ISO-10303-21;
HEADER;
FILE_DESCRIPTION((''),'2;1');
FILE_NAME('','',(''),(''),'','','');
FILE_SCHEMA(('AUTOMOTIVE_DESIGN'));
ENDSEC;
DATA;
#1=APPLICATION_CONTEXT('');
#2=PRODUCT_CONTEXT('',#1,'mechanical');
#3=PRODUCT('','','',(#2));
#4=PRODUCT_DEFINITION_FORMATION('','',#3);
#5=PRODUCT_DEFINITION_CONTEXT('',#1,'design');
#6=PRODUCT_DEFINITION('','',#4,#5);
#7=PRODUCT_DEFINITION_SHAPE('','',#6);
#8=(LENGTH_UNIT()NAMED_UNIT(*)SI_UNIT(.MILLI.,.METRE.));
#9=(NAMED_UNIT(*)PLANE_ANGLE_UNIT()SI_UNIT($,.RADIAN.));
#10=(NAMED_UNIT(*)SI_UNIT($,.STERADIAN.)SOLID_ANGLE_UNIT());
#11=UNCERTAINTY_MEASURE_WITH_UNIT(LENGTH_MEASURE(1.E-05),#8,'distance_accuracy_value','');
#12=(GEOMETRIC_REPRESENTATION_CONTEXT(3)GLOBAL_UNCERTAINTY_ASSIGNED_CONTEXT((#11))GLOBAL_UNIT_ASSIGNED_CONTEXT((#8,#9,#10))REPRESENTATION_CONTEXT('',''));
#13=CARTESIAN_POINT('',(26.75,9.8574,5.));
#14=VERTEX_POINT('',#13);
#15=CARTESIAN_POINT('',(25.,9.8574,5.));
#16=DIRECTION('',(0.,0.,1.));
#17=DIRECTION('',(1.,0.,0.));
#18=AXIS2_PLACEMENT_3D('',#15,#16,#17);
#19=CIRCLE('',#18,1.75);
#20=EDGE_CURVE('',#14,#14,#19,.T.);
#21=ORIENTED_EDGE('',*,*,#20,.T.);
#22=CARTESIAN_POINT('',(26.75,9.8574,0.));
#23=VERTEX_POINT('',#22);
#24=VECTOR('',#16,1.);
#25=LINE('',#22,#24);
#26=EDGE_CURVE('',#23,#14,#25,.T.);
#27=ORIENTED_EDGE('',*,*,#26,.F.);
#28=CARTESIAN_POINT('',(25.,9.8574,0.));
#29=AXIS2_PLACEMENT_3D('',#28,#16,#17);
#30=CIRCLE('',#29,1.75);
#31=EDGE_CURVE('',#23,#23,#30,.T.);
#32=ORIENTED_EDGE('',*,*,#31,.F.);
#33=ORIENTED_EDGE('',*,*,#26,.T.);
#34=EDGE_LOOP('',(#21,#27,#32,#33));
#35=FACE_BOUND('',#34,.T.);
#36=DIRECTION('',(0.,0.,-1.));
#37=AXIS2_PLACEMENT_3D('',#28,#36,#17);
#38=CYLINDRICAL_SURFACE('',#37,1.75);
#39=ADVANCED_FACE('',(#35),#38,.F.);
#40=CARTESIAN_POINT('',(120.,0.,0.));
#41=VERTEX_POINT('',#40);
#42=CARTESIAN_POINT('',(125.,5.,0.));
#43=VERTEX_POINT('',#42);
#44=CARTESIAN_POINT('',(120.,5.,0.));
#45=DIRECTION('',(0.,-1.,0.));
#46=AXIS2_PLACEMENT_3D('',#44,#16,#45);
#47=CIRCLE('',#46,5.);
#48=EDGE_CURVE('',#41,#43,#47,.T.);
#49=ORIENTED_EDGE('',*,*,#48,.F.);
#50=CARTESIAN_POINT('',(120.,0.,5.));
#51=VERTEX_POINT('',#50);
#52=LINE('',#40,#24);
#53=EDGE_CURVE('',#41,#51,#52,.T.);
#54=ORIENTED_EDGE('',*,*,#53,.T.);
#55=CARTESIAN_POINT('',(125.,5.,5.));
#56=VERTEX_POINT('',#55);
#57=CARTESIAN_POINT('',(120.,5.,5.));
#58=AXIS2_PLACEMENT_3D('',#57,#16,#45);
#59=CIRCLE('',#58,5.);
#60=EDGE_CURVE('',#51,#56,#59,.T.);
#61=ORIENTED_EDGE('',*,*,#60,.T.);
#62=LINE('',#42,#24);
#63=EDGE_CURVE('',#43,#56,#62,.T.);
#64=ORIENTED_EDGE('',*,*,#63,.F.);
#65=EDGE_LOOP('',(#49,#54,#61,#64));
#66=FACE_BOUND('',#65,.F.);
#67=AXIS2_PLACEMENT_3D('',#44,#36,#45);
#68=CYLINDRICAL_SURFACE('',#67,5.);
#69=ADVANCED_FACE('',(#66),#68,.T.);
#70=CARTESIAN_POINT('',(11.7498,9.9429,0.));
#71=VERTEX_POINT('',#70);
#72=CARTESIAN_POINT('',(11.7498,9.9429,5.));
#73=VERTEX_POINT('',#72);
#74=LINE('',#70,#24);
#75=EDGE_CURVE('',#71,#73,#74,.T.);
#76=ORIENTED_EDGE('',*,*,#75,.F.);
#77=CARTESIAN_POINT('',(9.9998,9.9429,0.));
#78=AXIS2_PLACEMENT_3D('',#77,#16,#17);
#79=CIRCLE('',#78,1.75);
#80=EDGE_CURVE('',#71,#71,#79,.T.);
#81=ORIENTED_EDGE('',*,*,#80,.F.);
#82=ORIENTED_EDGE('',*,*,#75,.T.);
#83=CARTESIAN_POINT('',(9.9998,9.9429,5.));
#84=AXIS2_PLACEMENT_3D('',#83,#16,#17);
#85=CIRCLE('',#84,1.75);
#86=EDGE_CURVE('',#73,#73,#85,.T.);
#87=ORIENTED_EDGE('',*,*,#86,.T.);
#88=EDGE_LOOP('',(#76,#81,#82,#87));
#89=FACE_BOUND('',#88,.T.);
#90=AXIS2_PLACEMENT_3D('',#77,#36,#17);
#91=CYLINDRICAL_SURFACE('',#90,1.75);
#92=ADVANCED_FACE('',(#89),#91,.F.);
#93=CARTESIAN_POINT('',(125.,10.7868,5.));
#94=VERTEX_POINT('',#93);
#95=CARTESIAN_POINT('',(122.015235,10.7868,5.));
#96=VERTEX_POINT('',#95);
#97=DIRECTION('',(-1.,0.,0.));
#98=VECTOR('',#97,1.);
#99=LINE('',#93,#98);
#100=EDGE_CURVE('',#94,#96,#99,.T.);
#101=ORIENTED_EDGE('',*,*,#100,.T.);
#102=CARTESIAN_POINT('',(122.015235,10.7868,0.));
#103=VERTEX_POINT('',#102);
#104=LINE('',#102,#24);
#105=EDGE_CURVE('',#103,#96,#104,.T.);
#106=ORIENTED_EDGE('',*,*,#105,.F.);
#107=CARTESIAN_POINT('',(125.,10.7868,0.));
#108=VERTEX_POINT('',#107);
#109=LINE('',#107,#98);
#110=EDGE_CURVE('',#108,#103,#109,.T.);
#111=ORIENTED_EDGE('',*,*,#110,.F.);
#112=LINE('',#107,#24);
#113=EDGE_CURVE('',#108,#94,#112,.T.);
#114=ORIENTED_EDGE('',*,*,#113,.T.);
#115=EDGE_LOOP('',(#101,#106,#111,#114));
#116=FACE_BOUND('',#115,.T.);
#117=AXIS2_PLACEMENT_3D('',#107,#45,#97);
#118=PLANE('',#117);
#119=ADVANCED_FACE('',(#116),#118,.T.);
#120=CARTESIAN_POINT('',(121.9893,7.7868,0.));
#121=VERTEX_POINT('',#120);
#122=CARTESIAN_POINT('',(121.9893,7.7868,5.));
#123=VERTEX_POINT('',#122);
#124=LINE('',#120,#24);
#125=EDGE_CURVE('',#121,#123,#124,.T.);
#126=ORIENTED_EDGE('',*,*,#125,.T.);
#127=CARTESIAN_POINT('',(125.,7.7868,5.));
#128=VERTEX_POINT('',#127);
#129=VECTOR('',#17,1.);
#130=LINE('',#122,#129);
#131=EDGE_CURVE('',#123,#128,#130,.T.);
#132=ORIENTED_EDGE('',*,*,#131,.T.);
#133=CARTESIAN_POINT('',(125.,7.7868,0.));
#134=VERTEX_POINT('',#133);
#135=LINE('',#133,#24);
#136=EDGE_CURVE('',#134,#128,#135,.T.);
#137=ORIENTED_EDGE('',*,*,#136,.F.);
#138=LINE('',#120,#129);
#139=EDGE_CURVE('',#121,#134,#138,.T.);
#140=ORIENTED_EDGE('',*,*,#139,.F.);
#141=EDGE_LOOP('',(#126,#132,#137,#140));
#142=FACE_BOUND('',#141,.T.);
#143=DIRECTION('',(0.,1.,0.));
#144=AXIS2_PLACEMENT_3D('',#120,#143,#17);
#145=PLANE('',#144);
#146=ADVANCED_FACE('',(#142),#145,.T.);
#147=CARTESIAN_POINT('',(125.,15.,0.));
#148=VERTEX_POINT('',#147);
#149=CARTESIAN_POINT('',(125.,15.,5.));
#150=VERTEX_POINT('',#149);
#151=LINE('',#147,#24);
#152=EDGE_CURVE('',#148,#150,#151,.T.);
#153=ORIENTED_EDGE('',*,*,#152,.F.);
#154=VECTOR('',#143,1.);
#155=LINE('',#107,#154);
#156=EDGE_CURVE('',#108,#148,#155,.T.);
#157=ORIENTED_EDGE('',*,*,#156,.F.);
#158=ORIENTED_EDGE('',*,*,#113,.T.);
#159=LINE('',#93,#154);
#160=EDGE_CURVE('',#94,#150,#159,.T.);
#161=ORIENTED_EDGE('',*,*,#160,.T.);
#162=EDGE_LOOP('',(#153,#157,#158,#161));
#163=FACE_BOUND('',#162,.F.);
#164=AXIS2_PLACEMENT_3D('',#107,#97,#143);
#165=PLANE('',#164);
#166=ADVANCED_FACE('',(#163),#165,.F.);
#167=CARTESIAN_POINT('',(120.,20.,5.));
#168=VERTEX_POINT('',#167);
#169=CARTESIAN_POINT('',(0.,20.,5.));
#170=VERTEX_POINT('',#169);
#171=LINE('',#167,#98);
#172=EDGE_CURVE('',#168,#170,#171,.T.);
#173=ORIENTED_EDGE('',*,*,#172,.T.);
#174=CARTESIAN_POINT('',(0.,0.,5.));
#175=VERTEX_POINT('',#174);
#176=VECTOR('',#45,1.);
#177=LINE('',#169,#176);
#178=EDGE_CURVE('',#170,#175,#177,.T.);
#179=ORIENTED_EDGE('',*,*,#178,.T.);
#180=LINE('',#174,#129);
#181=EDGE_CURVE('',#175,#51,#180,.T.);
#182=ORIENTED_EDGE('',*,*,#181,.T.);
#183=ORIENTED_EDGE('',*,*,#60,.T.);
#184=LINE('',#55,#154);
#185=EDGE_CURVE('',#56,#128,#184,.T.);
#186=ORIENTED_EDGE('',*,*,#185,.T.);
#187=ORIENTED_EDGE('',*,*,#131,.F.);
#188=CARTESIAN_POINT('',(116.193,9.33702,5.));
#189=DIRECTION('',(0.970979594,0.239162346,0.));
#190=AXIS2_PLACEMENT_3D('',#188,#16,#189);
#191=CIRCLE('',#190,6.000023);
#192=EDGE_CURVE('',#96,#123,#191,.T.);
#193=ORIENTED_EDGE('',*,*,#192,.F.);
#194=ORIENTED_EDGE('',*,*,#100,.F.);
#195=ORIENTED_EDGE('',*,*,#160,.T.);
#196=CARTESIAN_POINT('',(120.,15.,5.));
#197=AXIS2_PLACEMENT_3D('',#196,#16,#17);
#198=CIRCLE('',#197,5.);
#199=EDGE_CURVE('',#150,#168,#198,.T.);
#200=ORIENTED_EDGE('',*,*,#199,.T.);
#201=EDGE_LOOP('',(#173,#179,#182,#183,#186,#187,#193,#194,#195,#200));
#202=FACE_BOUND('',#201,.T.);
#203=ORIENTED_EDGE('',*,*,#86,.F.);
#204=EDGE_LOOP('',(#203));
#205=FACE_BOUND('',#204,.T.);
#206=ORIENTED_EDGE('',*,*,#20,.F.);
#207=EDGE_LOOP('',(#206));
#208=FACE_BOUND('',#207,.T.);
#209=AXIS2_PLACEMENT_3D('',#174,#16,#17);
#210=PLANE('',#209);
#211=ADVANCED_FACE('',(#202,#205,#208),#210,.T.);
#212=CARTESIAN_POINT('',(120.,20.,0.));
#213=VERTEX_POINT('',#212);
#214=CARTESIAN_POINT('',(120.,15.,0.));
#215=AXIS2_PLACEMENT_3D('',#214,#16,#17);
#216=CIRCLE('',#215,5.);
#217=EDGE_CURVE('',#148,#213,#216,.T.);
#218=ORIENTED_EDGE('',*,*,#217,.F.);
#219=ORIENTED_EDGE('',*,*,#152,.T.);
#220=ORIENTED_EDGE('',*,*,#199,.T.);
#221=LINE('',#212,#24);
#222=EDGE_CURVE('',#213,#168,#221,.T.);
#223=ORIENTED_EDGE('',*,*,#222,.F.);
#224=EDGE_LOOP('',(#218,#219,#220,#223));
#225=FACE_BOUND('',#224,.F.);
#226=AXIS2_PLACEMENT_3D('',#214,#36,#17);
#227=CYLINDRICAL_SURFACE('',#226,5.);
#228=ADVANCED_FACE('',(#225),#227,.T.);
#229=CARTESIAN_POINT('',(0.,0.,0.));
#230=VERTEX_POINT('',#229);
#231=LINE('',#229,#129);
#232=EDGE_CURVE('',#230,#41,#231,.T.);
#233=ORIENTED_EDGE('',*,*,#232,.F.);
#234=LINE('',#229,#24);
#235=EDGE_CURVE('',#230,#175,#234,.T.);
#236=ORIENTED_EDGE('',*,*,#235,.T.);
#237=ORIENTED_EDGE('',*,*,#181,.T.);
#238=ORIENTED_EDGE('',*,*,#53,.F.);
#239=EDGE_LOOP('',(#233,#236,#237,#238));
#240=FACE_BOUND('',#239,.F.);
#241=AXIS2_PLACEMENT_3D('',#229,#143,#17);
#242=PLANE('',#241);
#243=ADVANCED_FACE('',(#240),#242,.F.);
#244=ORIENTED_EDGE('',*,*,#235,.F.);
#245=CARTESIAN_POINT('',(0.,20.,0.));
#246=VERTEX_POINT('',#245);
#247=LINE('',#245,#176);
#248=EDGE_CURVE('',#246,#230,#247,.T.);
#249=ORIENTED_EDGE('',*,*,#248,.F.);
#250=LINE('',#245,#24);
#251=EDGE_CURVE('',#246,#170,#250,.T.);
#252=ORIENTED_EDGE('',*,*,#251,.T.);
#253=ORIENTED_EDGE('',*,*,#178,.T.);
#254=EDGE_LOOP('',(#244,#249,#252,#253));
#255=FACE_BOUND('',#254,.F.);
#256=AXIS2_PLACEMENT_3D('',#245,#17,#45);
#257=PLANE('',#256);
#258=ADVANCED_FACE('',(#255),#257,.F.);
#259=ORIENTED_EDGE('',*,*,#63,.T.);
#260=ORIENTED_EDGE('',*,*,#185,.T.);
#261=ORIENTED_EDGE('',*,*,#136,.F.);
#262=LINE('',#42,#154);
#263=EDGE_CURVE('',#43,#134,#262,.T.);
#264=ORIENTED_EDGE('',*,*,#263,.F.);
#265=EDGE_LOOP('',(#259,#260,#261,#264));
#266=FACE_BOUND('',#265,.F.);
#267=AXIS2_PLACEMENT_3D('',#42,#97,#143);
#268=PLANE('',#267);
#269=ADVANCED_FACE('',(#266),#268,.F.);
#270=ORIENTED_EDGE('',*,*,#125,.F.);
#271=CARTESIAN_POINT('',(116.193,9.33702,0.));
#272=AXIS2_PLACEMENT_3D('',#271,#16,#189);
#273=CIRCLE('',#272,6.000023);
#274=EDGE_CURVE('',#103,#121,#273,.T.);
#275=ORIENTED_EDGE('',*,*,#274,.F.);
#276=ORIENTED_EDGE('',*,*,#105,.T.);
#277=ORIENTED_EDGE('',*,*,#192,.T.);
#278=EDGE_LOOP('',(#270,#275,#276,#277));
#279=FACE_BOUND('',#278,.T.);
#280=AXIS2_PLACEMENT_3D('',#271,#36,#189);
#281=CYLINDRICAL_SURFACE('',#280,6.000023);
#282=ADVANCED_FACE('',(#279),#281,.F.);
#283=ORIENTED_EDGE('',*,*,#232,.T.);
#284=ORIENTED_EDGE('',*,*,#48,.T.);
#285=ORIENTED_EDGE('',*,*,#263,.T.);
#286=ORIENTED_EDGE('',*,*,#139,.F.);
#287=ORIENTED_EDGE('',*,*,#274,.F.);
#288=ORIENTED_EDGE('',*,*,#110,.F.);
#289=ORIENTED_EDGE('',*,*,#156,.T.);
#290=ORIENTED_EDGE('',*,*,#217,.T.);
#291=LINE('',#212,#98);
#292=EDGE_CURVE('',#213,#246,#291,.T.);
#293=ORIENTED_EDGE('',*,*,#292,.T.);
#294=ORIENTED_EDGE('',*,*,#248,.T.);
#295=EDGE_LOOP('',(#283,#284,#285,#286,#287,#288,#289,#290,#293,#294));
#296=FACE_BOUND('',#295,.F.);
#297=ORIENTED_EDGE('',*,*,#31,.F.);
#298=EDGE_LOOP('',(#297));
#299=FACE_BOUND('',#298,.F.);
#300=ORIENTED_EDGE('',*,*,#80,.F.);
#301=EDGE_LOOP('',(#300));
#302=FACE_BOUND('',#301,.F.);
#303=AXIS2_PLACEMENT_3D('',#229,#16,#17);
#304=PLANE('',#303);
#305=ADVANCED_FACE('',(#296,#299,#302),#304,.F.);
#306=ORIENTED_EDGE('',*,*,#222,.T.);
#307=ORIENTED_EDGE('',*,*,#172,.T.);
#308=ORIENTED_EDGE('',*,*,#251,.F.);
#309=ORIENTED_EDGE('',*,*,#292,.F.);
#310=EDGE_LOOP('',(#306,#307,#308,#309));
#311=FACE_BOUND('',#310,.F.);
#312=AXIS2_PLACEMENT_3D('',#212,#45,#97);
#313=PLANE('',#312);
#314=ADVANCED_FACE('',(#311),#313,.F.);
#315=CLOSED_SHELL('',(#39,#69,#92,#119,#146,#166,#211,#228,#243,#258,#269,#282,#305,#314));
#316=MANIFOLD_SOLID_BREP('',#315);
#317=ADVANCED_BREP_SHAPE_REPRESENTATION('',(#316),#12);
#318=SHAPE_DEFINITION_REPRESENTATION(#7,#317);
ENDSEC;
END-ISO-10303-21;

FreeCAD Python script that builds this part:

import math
import FreeCAD as App
import Part
import Sketcher

V = App.Vector
Q = App.Units.Quantity

doc = App.newDocument("Part")
body = doc.addObject("PartDesign::Body", "Body")

# Sketch on XY plane
sketch1 = doc.addObject("Sketcher::SketchObject", "Sketch")
body.addObject(sketch1)
sketch1.AttachmentSupport = (doc.XY_Plane, [""])
sketch1.MapMode = "FlatFace"
sketch1.addGeometry([
    Part.LineSegment(V(0, 20, 0), V(0, 0, 0)),  # 0
    Part.LineSegment(V(0, 0, 0), V(120, 0, 0)),  # 1
    Part.ArcOfCircle(Part.Circle(V(120, 5, 0), V(0, 0, 1), 5), math.radians(-90), math.radians(0)),  # 2
    Part.LineSegment(V(125, 5, 0), V(125, 7.7868, 0)),  # 3
    Part.LineSegment(V(125, 7.7868, 0), V(121.9893, 7.7868, 0)),  # 4
    Part.ArcOfCircle(Part.Circle(V(116.193, 9.337, 0), V(0, 0, 1), 6.000028), math.radians(13.982894), math.radians(345.026878)),  # 5
    Part.LineSegment(V(122.015235, 10.7868, 0), V(125, 10.7868, 0)),  # 6
    Part.LineSegment(V(125, 10.7868, 0), V(125, 15, 0)),  # 7
    Part.ArcOfCircle(Part.Circle(V(120, 15, 0), V(0, 0, 1), 5), math.radians(0), math.radians(90)),  # 8
    Part.LineSegment(V(120, 20, 0), V(0, 20, 0)),  # 9
    Part.Circle(V(9.9998, 9.9429, 0), V(0, 0, 1), 1.75),  # 10
    Part.Circle(V(25, 9.8574, 0), V(0, 0, 1), 1.75),  # 11
], False)
sketch1.addConstraint([
    Sketcher.Constraint("Coincident", 0, 2, 1, 1),
    Sketcher.Constraint("Tangent", 1, 2, 2, 1),
    Sketcher.Constraint("Tangent", 2, 2, 3, 1),
    Sketcher.Constraint("Coincident", 3, 2, 4, 1),
    Sketcher.Constraint("Coincident", 4, 2, 5, 2),
    Sketcher.Constraint("Coincident", 5, 1, 6, 1),
    Sketcher.Constraint("Coincident", 6, 2, 7, 1),
    Sketcher.Constraint("Tangent", 7, 2, 8, 1),
    Sketcher.Constraint("Tangent", 8, 2, 9, 1),
    Sketcher.Constraint("Coincident", 9, 2, 0, 1),
    Sketcher.Constraint("Vertical", 0),
    Sketcher.Constraint("Horizontal", 1),
    Sketcher.Constraint("Vertical", 3),
    Sketcher.Constraint("Horizontal", 4),
    Sketcher.Constraint("Horizontal", 6),
    Sketcher.Constraint("Vertical", 7),
    Sketcher.Constraint("Horizontal", 9),
    Sketcher.Constraint("Coincident", 0, 2, -1, 1),
    Sketcher.Constraint("Equal", 2, 8),
    Sketcher.Constraint("Equal", 10, 11),
    Sketcher.Constraint("Vertical", 2, 3, 8, 3),
    Sketcher.Constraint("Radius", 2, Q("5 mm")),
    Sketcher.Constraint("Radius", 5, Q("6 mm")),
    Sketcher.Constraint("Diameter", 10, Q("3.5 mm")),
    Sketcher.Constraint("DistanceY", 0, 2, 0, 1, Q("20 mm")),
    Sketcher.Constraint("DistanceX", -1, 1, 11, 3, Q("25 mm")),
    Sketcher.Constraint("DistanceX", -1, 1, 2, 2, Q("125 mm")),
    Sketcher.Constraint("DistanceY", 4, 2, 5, 1, Q("3 mm")),
    Sketcher.Constraint("DistanceX", -1, 1, 10, 3, Q("9.9998 mm")),
    Sketcher.Constraint("DistanceX", 4, 2, 4, 1, Q("3.0107 mm")),
    Sketcher.Constraint("DistanceX", 6, 1, 6, 2, Q("2.9848 mm")),
    Sketcher.Constraint("DistanceY", 3, 1, 3, 2, Q("2.7868 mm")),
    Sketcher.Constraint("DistanceY", -1, 1, 10, 3, Q("9.943 mm")),
    Sketcher.Constraint("DistanceY", -1, 1, 11, 3, Q("9.8574 mm")),
])
pad1 = doc.addObject("PartDesign::Pad", "Pad")
body.addObject(pad1)
pad1.Profile = sketch1
pad1.Length = 5

doc.recompute()
